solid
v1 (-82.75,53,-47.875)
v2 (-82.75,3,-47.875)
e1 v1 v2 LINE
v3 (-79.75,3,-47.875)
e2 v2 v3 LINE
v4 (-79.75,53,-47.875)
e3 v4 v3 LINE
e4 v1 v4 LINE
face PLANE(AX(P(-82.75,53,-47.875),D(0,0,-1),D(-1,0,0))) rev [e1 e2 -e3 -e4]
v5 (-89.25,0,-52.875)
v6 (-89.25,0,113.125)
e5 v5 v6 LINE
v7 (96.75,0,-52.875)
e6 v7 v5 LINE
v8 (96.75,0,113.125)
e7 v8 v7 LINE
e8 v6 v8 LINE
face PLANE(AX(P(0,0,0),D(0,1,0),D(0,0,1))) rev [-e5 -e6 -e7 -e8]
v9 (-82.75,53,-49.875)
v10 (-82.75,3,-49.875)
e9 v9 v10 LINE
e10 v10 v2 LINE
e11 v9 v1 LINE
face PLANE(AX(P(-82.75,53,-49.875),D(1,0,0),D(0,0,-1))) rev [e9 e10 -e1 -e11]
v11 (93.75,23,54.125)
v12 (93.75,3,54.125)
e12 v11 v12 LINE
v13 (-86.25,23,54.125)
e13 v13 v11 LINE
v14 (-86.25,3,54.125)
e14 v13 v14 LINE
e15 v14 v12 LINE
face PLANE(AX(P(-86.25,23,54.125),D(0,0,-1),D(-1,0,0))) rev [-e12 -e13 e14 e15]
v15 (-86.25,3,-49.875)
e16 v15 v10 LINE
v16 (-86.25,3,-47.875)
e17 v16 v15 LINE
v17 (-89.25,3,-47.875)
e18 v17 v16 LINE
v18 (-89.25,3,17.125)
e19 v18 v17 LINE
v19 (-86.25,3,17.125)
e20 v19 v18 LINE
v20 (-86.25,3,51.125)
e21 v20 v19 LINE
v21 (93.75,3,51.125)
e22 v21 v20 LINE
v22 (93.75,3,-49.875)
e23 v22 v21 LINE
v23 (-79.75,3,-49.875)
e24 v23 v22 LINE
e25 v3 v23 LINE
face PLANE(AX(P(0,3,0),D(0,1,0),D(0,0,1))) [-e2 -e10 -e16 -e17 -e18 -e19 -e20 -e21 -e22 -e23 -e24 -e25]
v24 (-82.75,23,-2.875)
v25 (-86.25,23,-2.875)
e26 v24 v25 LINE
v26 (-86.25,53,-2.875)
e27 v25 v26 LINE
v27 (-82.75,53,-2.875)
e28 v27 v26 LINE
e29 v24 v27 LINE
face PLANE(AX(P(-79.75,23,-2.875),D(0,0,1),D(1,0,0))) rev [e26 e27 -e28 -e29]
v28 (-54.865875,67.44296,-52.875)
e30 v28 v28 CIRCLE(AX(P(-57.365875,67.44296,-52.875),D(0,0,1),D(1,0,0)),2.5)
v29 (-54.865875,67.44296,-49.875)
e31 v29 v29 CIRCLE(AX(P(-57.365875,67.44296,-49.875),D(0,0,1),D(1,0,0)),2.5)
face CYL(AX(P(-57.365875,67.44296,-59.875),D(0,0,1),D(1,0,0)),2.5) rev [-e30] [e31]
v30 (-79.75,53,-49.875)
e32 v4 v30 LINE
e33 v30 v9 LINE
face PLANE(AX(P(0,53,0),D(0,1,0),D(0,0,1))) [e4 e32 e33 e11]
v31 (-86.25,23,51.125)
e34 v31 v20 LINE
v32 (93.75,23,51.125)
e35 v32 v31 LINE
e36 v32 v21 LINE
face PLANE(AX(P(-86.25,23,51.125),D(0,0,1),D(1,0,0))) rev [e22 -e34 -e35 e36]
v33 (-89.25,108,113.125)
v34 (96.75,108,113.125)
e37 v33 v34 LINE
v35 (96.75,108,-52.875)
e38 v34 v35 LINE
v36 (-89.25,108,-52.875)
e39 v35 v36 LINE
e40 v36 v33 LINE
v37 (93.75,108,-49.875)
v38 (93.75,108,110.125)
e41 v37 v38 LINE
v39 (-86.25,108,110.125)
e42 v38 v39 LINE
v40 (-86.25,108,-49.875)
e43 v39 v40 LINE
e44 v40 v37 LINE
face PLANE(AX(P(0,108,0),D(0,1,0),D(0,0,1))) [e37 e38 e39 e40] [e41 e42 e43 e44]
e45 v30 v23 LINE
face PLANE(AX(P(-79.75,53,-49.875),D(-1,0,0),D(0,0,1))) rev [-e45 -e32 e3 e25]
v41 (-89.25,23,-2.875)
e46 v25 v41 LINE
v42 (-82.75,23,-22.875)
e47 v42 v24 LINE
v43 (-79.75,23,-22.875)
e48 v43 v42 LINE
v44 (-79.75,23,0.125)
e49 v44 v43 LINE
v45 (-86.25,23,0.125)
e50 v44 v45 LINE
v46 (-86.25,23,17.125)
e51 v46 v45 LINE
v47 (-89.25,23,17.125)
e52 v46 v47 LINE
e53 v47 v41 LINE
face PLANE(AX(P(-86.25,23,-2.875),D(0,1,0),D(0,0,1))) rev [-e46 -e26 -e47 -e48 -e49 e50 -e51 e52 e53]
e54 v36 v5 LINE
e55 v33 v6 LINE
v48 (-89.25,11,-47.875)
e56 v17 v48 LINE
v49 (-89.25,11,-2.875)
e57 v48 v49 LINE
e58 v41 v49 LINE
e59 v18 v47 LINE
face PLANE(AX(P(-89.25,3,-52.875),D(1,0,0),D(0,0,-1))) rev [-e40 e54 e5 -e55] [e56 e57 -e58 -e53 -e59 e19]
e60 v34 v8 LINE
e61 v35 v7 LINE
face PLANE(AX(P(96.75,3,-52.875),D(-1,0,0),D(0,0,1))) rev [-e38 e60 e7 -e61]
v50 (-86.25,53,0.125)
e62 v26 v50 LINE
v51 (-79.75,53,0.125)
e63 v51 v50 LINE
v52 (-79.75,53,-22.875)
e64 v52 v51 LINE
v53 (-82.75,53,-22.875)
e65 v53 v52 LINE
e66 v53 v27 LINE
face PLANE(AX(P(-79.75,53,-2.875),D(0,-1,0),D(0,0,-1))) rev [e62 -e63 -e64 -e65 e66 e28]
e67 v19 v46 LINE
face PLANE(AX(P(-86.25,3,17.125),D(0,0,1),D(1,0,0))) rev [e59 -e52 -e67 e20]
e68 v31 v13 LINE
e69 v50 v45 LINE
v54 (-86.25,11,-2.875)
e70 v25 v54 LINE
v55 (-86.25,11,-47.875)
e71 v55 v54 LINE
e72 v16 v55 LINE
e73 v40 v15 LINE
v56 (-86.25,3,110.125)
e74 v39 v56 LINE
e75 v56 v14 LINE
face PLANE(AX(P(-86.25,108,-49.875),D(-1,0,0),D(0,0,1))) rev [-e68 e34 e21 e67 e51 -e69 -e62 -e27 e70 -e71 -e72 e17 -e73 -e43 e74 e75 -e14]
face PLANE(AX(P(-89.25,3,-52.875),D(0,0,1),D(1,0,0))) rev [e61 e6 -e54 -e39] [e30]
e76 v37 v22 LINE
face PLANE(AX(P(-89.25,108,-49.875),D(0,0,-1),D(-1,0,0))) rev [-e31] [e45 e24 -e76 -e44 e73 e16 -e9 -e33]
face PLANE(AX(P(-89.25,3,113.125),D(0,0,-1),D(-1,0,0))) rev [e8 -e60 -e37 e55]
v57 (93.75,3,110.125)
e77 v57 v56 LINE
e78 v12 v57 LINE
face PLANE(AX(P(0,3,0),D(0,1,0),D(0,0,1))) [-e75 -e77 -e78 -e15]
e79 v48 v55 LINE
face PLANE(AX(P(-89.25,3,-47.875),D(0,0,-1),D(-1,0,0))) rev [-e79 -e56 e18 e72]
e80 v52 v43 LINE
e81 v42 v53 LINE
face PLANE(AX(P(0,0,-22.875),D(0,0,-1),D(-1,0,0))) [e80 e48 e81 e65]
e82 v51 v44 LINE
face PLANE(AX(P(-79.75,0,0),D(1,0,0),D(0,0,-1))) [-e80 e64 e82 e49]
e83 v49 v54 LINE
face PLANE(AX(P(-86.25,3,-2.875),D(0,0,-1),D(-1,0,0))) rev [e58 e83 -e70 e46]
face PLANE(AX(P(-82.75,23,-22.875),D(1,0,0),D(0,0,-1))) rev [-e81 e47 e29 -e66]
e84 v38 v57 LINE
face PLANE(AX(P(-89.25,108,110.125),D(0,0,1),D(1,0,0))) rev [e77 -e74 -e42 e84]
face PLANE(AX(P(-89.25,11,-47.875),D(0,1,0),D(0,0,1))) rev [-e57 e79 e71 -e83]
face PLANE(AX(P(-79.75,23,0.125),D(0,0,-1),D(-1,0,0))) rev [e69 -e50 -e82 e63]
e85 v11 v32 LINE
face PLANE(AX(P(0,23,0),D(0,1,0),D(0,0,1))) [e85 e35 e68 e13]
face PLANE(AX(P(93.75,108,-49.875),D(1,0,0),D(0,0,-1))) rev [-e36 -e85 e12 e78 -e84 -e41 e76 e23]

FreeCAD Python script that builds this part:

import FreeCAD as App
import Part
import Sketcher
from FreeCAD import Vector


def add_polygon(sketch, points):
    """Adds a closed chain of lines whose ends are joined by coincident constraints."""
    first, n = sketch.GeometryCount, len(points)
    for a, b in zip(points, points[1:] + points[:1]):
        sketch.addGeometry(Part.LineSegment(App.Vector(*a, 0), App.Vector(*b, 0)), False)
    for i in range(n):
        sketch.addConstraint(Sketcher.Constraint("Coincident", first + i, 2, first + (i + 1) % n, 1))

doc = App.newDocument("Part")
body = doc.addObject("PartDesign::Body", "Body")

sketch1 = body.newObject("Sketcher::SketchObject", "Sketch")
sketch1.AttachmentSupport = (doc.getObject("XZ_Plane"), [""])
sketch1.MapMode = "FlatFace"
add_polygon(sketch1, [(-89, -53), (-89, 113), (97, 113), (97, -53)])
sketch1.addConstraint([
    Sketcher.Constraint("Vertical", 0),
    Sketcher.Constraint("Horizontal", 1),
    Sketcher.Constraint("Vertical", 2),
    Sketcher.Constraint("Horizontal", 3),
    Sketcher.Constraint("DistanceX", 1, 1, 1, 2, 186.0),
    Sketcher.Constraint("DistanceY", 0, 1, 0, 2, 166.0),
    Sketcher.Constraint("DistanceX", 0, 2, -1, 1, 89.25),
    Sketcher.Constraint("DistanceY", -1, 1, 0, 2, 113.125),
])
pad1 = body.newObject("PartDesign::Pad", "Pad")
pad1.Profile = sketch1
pad1.Length = 3
pad1.Reversed = True

sketch2 = body.newObject("Sketcher::SketchObject", "Sketch001")
sketch2.AttachmentSupport = (doc.getObject("XZ_Plane"), [""])
sketch2.MapMode = "FlatFace"
sketch2.AttachmentOffset = App.Placement(Vector(0, 0, -3), App.Rotation())
add_polygon(sketch2, [(-89.2, 110.1), (-89.2, 113.1), (93.8, 113.1), (93.8, 110.1)])
sketch2.addConstraint([
    Sketcher.Constraint("Vertical", 0),
    Sketcher.Constraint("Horizontal", 1),
    Sketcher.Constraint("Vertical", 2),
    Sketcher.Constraint("Horizontal", 3),
    Sketcher.Constraint("DistanceX", 1, 1, 1, 2, 183.0),
    Sketcher.Constraint("DistanceY", 0, 1, 0, 2, 3.0),
    Sketcher.Constraint("DistanceX", 0, 2, -1, 1, 89.25),
    Sketcher.Constraint("DistanceY", -1, 1, 0, 2, 113.125),
])
pad2 = body.newObject("PartDesign::Pad", "Pad001")
pad2.Profile = sketch2
pad2.Length = 105
pad2.Reversed = True

sketch3 = body.newObject("Sketcher::SketchObject", "Sketch002")
sketch3.AttachmentSupport = (doc.getObject("XZ_Plane"), [""])
sketch3.MapMode = "FlatFace"
sketch3.AttachmentOffset = App.Placement(Vector(0, 0, -3), App.Rotation())
add_polygon(sketch3, [(93.8, -49.9), (93.8, 113.1), (96.8, 113.1), (96.8, -49.9)])
sketch3.addConstraint([
    Sketcher.Constraint("Vertical", 0),
    Sketcher.Constraint("Horizontal", 1),
    Sketcher.Constraint("Vertical", 2),
    Sketcher.Constraint("Horizontal", 3),
    Sketcher.Constraint("DistanceX", 1, 1, 1, 2, 3.0),
    Sketcher.Constraint("DistanceY", 0, 1, 0, 2, 163.0),
    Sketcher.Constraint("DistanceX", -1, 1, 0, 2, 93.75),
    Sketcher.Constraint("DistanceY", -1, 1, 0, 2, 113.125),
])
pad3 = body.newObject("PartDesign::Pad", "Pad002")
pad3.Profile = sketch3
pad3.Length = 105
pad3.Reversed = True

sketch4 = body.newObject("Sketcher::SketchObject", "Sketch003")
sketch4.AttachmentSupport = (doc.getObject("XZ_Plane"), [""])
sketch4.MapMode = "FlatFace"
sketch4.AttachmentOffset = App.Placement(Vector(0, 0, -3), App.Rotation())
add_polygon(sketch4, [(-89.2, -52.9), (-89.2, -49.9), (96.8, -49.9), (96.8, -52.9)])
sketch4.addConstraint([
    Sketcher.Constraint("Vertical", 0),
    Sketcher.Constraint("Horizontal", 1),
    Sketcher.Constraint("Vertical", 2),
    Sketcher.Constraint("Horizontal", 3),
    Sketcher.Constraint("DistanceX", 1, 1, 1, 2, 186.0),
    Sketcher.Constraint("DistanceY", 0, 1, 0, 2, 3.0),
    Sketcher.Constraint("DistanceX", 0, 2, -1, 1, 89.25),
    Sketcher.Constraint("DistanceY", 0, 2, -1, 1, 49.875),
])
pad4 = body.newObject("PartDesign::Pad", "Pad003")
pad4.Profile = sketch4
pad4.Length = 105
pad4.Reversed = True

sketch5 = body.newObject("Sketcher::SketchObject", "Sketch004")
sketch5.AttachmentSupport = (doc.getObject("XZ_Plane"), [""])
sketch5.MapMode = "FlatFace"
sketch5.AttachmentOffset = App.Placement(Vector(0, 0, -3), App.Rotation())
add_polygon(sketch5, [(-89.2, -49.9), (-89.2, 110.1), (-86.2, 110.1), (-86.2, -49.9)])
sketch5.addConstraint([
    Sketcher.Constraint("Vertical", 0),
    Sketcher.Constraint("Horizontal", 1),
    Sketcher.Constraint("Vertical", 2),
    Sketcher.Constraint("Horizontal", 3),
    Sketcher.Constraint("DistanceX", 1, 1, 1, 2, 3.0),
    Sketcher.Constraint("DistanceY", 0, 1, 0, 2, 160.0),
    Sketcher.Constraint("DistanceX", 0, 2, -1, 1, 89.25),
    Sketcher.Constraint("DistanceY", -1, 1, 0, 2, 110.125),
])
pad5 = body.newObject("PartDesign::Pad", "Pad004")
pad5.Profile = sketch5
pad5.Length = 105
pad5.Reversed = True

sketch6 = body.newObject("Sketcher::SketchObject", "Sketch005")
sketch6.AttachmentSupport = (doc.getObject("XZ_Plane"), [""])
sketch6.MapMode = "FlatFace"
sketch6.AttachmentOffset = App.Placement(Vector(0, 0, -3), App.Rotation())
add_polygon(sketch6, [(-86.2, 51.1), (-86.2, 54.1), (93.8, 54.1), (93.8, 51.1)])
sketch6.addConstraint([
    Sketcher.Constraint("Vertical", 0),
    Sketcher.Constraint("Horizontal", 1),
    Sketcher.Constraint("Vertical", 2),
    Sketcher.Constraint("Horizontal", 3),
    Sketcher.Constraint("DistanceX", 1, 1, 1, 2, 180.0),
    Sketcher.Constraint("DistanceY", 0, 1, 0, 2, 3.0),
    Sketcher.Constraint("DistanceX", 0, 2, -1, 1, 86.25),
    Sketcher.Constraint("DistanceY", -1, 1, 0, 2, 54.125),
])
pad6 = body.newObject("PartDesign::Pad", "Pad005")
pad6.Profile = sketch6
pad6.Length = 20
pad6.Reversed = True

sketch7 = body.newObject("Sketcher::SketchObject", "Sketch006")
sketch7.AttachmentSupport = (doc.getObject("YZ_Plane"), [""])
sketch7.MapMode = "FlatFace"
sketch7.AttachmentOffset = App.Placement(Vector(0, 0, -86.25), App.Rotation())
add_polygon(sketch7, [(11, -3), (3, -3), (3, -48), (11, -48)])
sketch7.addConstraint([
    Sketcher.Constraint("Horizontal", 0),
    Sketcher.Constraint("Vertical", 1),
    Sketcher.Constraint("Horizontal", 2),
    Sketcher.Constraint("Vertical", 3),
    Sketcher.Constraint("DistanceX", 0, 2, 0, 1, 8.0),
    Sketcher.Constraint("DistanceY", 1, 2, 1, 1, 45.0),
    Sketcher.Constraint("DistanceX", -1, 1, 0, 2, 3.0),
    Sketcher.Constraint("DistanceY", 0, 2, -1, 1, 2.875),
])
pocket1 = body.newObject("PartDesign::Pocket", "Pocket")
pocket1.Profile = sketch7
pocket1.Length = 3

sketch8 = body.newObject("Sketcher::SketchObject", "Sketch007")
sketch8.AttachmentSupport = (doc.getObject("XZ_Plane"), [""])
sketch8.MapMode = "FlatFace"
sketch8.AttachmentOffset = App.Placement(Vector(0, 0, -3), App.Rotation())
add_polygon(sketch8, [(-82.8, -49.9), (-82.8, -47.9), (-79.8, -47.9), (-79.8, -49.9)])
sketch8.addConstraint([
    Sketcher.Constraint("Vertical", 0),
    Sketcher.Constraint("Horizontal", 1),
    Sketcher.Constraint("Vertical", 2),
    Sketcher.Constraint("Horizontal", 3),
    Sketcher.Constraint("DistanceX", 1, 1, 1, 2, 3.0),
    Sketcher.Constraint("DistanceY", 0, 1, 0, 2, 2.0),
    Sketcher.Constraint("DistanceX", 0, 2, -1, 1, 82.75),
    Sketcher.Constraint("DistanceY", 0, 2, -1, 1, 47.875),
])
pad7 = body.newObject("PartDesign::Pad", "Pad006")
pad7.Profile = sketch8
pad7.Length = 50
pad7.Reversed = True

sketch9 = body.newObject("Sketcher::SketchObject", "Sketch008")
sketch9.AttachmentSupport = (doc.getObject("YZ_Plane"), [""])
sketch9.MapMode = "FlatFace"
sketch9.AttachmentOffset = App.Placement(Vector(0, 0, -89.25), App.Rotation())
add_polygon(sketch9, [(23, -3), (3, -3), (3, 17), (23, 17)])
sketch9.addConstraint([
    Sketcher.Constraint("Horizontal", 0),
    Sketcher.Constraint("Vertical", 1),
    Sketcher.Constraint("Horizontal", 2),
    Sketcher.Constraint("Vertical", 3),
    Sketcher.Constraint("Equal", 2, 1),
    Sketcher.Constraint("DistanceX", 0, 2, 0, 1, 20.0),
    Sketcher.Constraint("DistanceX", -1, 1, 0, 2, 3.0),
    Sketcher.Constraint("DistanceY", 0, 2, -1, 1, 2.875),
])
pocket2 = body.newObject("PartDesign::Pocket", "Pocket001")
pocket2.Profile = sketch9
pocket2.Length = 3
pocket2.Reversed = True

sketch10 = body.newObject("Sketcher::SketchObject", "Sketch009")
sketch10.AttachmentSupport = (doc.getObject("YZ_Plane"), [""])
sketch10.MapMode = "FlatFace"
sketch10.AttachmentOffset = App.Placement(Vector(0, 0, -86.25), App.Rotation())
add_polygon(sketch10, [(53, 0.1), (23, 0.1), (23, -2.9), (53, -2.9)])
sketch10.addConstraint([
    Sketcher.Constraint("Horizontal", 0),
    Sketcher.Constraint("Vertical", 1),
    Sketcher.Constraint("Horizontal", 2),
    Sketcher.Constraint("Vertical", 3),
    Sketcher.Constraint("DistanceX", 0, 2, 0, 1, 30.0),
    Sketcher.Constraint("DistanceY", 1, 2, 1, 1, 3.0),
    Sketcher.Constraint("DistanceX", -1, 1, 0, 2, 23.0),
    Sketcher.Constraint("DistanceY", -1, 1, 0, 2, 0.125),
])
pad8 = body.newObject("PartDesign::Pad", "Pad007")
pad8.Profile = sketch10
pad8.Length = 6.5

sketch11 = body.newObject("Sketcher::SketchObject", "Sketch010")
sketch11.AttachmentSupport = (doc.getObject("XY_Plane"), [""])
sketch11.MapMode = "FlatFace"
sketch11.AttachmentOffset = App.Placement(Vector(0, 0, -2.875), App.Rotation())
add_polygon(sketch11, [(-79.8, 53), (-79.8, 23), (-82.8, 23), (-82.8, 53)])
sketch11.addConstraint([
    Sketcher.Constraint("Vertical", 0),
    Sketcher.Constraint("Horizontal", 1),
    Sketcher.Constraint("Vertical", 2),
    Sketcher.Constraint("Horizontal", 3),
    Sketcher.Constraint("DistanceX", 1, 2, 1, 1, 3.0),
    Sketcher.Constraint("DistanceY", 0, 2, 0, 1, 30.0),
    Sketcher.Constraint("DistanceY", -1, 1, 0, 2, 23.0),
    Sketcher.Constraint("DistanceX", 0, 2, -1, 1, 79.75),
])
pad9 = body.newObject("PartDesign::Pad", "Pad008")
pad9.Profile = sketch11
pad9.Length = 20
pad9.Reversed = True

sketch12 = body.newObject("Sketcher::SketchObject", "Sketch011")
sketch12.AttachmentSupport = (doc.getObject("XY_Plane"), [""])
sketch12.MapMode = "FlatFace"
sketch12.AttachmentOffset = App.Placement(Vector(0, 0, -49.875), App.Rotation())
sketch12.addGeometry(Part.Circle(Vector(-57.4, 67.4, 0), Vector(0, 0, 1), 2.5), False)
sketch12.addConstraint([
    Sketcher.Constraint("Diameter", 0, 5.0),
    Sketcher.Constraint("DistanceY", -1, 1, 0, 3, 67.44296),
    Sketcher.Constraint("DistanceX", 0, 3, -1, 1, 57.365875),
])
pocket3 = body.newObject("PartDesign::Pocket", "Pocket002")
pocket3.Profile = sketch12
pocket3.Length = 10

doc.recompute()
